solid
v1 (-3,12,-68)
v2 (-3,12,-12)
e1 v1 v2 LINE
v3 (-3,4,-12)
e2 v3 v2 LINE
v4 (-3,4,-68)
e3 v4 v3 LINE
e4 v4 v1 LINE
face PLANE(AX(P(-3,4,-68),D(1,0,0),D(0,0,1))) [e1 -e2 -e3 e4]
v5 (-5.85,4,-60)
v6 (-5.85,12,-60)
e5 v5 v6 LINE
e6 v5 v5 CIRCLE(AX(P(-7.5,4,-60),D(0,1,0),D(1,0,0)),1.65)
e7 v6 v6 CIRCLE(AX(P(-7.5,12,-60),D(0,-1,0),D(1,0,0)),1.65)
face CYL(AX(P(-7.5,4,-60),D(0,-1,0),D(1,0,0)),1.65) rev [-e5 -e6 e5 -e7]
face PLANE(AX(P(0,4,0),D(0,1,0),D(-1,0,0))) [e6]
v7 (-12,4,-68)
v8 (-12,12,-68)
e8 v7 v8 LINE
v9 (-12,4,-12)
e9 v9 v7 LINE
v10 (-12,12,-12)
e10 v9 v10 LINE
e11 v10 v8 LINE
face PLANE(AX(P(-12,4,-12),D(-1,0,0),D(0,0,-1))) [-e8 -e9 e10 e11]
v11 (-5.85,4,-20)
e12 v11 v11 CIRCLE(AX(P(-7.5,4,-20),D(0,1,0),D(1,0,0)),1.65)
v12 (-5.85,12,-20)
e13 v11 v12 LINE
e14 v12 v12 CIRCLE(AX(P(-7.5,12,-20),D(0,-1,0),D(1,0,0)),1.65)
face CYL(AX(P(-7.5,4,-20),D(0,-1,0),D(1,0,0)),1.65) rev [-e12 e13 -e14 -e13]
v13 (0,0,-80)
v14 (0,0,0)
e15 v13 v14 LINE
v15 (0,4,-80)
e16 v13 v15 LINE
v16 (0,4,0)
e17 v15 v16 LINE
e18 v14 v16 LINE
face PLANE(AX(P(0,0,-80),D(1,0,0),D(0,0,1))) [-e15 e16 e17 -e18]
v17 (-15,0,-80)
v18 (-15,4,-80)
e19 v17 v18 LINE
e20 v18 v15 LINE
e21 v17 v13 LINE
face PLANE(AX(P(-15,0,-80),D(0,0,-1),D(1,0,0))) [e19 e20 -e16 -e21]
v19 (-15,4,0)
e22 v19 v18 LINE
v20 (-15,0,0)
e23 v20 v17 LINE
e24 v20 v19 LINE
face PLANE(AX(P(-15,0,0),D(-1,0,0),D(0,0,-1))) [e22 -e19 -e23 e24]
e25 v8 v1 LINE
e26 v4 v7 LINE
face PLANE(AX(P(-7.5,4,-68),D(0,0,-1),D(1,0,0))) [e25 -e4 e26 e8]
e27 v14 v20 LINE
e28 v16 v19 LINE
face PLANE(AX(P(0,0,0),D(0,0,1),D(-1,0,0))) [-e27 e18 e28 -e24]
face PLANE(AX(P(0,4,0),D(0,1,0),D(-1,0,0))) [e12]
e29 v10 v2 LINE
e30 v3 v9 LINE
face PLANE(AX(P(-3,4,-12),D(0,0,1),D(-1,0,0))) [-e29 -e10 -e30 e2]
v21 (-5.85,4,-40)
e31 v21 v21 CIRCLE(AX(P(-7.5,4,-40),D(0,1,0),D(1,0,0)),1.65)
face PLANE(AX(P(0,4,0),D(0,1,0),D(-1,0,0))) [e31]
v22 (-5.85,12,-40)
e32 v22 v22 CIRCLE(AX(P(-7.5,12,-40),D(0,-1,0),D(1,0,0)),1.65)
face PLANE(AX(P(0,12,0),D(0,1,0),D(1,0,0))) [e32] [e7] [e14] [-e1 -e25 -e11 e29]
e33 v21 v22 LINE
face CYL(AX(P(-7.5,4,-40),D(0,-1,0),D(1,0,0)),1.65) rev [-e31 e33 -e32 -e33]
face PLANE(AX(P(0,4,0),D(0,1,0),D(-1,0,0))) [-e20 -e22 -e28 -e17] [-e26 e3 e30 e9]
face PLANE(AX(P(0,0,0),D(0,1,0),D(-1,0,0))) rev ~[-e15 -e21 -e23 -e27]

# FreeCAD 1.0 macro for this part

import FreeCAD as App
import Part
import Sketcher

V = App.Vector
Q = App.Units.Quantity


def add_polygon(sketch, points):
    """Adds a closed chain of lines whose ends are joined by coincident constraints."""
    first, n = sketch.GeometryCount, len(points)
    for a, b in zip(points, points[1:] + points[:1]):
        sketch.addGeometry(Part.LineSegment(App.Vector(*a, 0), App.Vector(*b, 0)), False)
    for i in range(n):
        sketch.addConstraint(Sketcher.Constraint("Coincident", first + i, 2, first + (i + 1) % n, 1))

doc = App.newDocument("Part")
params = doc.addObject("Spreadsheet::Sheet", "Params")
for row, (alias, value) in enumerate([
    ("sketch1_width", "15 mm"),
    ("sketch1_height", "80 mm"),
    ("pad1_length", "4 mm"),
    ("sketch2_diameter", "3.3 mm"),
    ("sketch2_width", "9 mm"),
    ("sketch2_height", "56 mm"),
    ("pad2_length", "8 mm"),
], start=1):
    params.set(f"A{row}", alias)
    params.set(f"B{row}", "=" + value)
    params.setAlias(f"B{row}", alias)

body = doc.addObject("PartDesign::Body", "Body")

sketch1 = body.newObject("Sketcher::SketchObject", "Sketch")
sketch1.AttachmentSupport = (doc.getObject("XZ_Plane"), [""])
sketch1.MapMode = "FlatFace"
add_polygon(sketch1, [(-15, 0), (0, 0), (0, -80), (-15, -80)])
sketch1.addConstraint([
    Sketcher.Constraint("Horizontal", 0),
    Sketcher.Constraint("Vertical", 1),
    Sketcher.Constraint("Horizontal", 2),
    Sketcher.Constraint("Vertical", 3),
    Sketcher.Constraint("Coincident", 0, 2, -1, 1),
    Sketcher.Constraint("DistanceX", 0, 1, 0, 2, Q("15 mm")),
    Sketcher.Constraint("DistanceY", 1, 2, 1, 1, Q("80 mm")),
])
sketch1.setExpression("Constraints[9]", "Params.sketch1_width")
sketch1.setExpression("Constraints[10]", "Params.sketch1_height")
pad1 = body.newObject("PartDesign::Pad", "Pad")
pad1.Profile = sketch1
pad1.setExpression("Length", "Params.pad1_length")
pad1.Reversed = True

sketch2 = body.newObject("Sketcher::SketchObject", "Sketch001")
sketch2.AttachmentSupport = (doc.getObject("XZ_Plane"), [""])
sketch2.MapMode = "FlatFace"
sketch2.AttachmentOffset = App.Placement(V(0, 0, -4), App.Rotation())
add_polygon(sketch2, [(-3, -68), (-12, -68), (-12, -12), (-3, -12)])
sketch2.addGeometry(Part.Circle(V(-7.5, -20, 0), V(0, 0, 1), 1.6), False)
sketch2.addGeometry(Part.Circle(V(-7.5, -40, 0), V(0, 0, 1), 1.6), False)
sketch2.addGeometry(Part.Circle(V(-7.5, -60, 0), V(0, 0, 1), 1.6), False)
sketch2.addConstraint([
    Sketcher.Constraint("Horizontal", 0),
    Sketcher.Constraint("Vertical", 1),
    Sketcher.Constraint("Horizontal", 2),
    Sketcher.Constraint("Vertical", 3),
    Sketcher.Constraint("Equal", 4, 5),
    Sketcher.Constraint("Equal", 5, 6),
    Sketcher.Constraint("Vertical", 4, 3, 5, 3),
    Sketcher.Constraint("Vertical", 5, 3, 6, 3),
    Sketcher.Constraint("Diameter", 4, Q("3.3 mm")),
    Sketcher.Constraint("DistanceX", 0, 2, 0, 1, Q("9 mm")),
    Sketcher.Constraint("DistanceY", 4, 3, -1, 1, Q("20 mm")),
    Sketcher.Constraint("DistanceX", 0, 2, -1, 1, Q("12 mm")),
    Sketcher.Constraint("DistanceY", 1, 2, -1, 1, Q("12 mm")),
    Sketcher.Constraint("DistanceY", 5, 3, 4, 3, Q("20 mm")),
    Sketcher.Constraint("DistanceY", 6, 3, 5, 3, Q("20 mm")),
    Sketcher.Constraint("DistanceY", 1, 1, 1, 2, Q("56 mm")),
    Sketcher.Constraint("DistanceX", 4, 3, -1, 1, Q("7.5 mm")),
])
sketch2.setExpression("Constraints[12]", "Params.sketch2_diameter")
sketch2.setExpression("Constraints[13]", "Params.sketch2_width")
sketch2.setExpression("Constraints[19]", "Params.sketch2_height")
pad2 = body.newObject("PartDesign::Pad", "Pad001")
pad2.Profile = sketch2
pad2.setExpression("Length", "Params.pad2_length")
pad2.Reversed = True

doc.recompute()
